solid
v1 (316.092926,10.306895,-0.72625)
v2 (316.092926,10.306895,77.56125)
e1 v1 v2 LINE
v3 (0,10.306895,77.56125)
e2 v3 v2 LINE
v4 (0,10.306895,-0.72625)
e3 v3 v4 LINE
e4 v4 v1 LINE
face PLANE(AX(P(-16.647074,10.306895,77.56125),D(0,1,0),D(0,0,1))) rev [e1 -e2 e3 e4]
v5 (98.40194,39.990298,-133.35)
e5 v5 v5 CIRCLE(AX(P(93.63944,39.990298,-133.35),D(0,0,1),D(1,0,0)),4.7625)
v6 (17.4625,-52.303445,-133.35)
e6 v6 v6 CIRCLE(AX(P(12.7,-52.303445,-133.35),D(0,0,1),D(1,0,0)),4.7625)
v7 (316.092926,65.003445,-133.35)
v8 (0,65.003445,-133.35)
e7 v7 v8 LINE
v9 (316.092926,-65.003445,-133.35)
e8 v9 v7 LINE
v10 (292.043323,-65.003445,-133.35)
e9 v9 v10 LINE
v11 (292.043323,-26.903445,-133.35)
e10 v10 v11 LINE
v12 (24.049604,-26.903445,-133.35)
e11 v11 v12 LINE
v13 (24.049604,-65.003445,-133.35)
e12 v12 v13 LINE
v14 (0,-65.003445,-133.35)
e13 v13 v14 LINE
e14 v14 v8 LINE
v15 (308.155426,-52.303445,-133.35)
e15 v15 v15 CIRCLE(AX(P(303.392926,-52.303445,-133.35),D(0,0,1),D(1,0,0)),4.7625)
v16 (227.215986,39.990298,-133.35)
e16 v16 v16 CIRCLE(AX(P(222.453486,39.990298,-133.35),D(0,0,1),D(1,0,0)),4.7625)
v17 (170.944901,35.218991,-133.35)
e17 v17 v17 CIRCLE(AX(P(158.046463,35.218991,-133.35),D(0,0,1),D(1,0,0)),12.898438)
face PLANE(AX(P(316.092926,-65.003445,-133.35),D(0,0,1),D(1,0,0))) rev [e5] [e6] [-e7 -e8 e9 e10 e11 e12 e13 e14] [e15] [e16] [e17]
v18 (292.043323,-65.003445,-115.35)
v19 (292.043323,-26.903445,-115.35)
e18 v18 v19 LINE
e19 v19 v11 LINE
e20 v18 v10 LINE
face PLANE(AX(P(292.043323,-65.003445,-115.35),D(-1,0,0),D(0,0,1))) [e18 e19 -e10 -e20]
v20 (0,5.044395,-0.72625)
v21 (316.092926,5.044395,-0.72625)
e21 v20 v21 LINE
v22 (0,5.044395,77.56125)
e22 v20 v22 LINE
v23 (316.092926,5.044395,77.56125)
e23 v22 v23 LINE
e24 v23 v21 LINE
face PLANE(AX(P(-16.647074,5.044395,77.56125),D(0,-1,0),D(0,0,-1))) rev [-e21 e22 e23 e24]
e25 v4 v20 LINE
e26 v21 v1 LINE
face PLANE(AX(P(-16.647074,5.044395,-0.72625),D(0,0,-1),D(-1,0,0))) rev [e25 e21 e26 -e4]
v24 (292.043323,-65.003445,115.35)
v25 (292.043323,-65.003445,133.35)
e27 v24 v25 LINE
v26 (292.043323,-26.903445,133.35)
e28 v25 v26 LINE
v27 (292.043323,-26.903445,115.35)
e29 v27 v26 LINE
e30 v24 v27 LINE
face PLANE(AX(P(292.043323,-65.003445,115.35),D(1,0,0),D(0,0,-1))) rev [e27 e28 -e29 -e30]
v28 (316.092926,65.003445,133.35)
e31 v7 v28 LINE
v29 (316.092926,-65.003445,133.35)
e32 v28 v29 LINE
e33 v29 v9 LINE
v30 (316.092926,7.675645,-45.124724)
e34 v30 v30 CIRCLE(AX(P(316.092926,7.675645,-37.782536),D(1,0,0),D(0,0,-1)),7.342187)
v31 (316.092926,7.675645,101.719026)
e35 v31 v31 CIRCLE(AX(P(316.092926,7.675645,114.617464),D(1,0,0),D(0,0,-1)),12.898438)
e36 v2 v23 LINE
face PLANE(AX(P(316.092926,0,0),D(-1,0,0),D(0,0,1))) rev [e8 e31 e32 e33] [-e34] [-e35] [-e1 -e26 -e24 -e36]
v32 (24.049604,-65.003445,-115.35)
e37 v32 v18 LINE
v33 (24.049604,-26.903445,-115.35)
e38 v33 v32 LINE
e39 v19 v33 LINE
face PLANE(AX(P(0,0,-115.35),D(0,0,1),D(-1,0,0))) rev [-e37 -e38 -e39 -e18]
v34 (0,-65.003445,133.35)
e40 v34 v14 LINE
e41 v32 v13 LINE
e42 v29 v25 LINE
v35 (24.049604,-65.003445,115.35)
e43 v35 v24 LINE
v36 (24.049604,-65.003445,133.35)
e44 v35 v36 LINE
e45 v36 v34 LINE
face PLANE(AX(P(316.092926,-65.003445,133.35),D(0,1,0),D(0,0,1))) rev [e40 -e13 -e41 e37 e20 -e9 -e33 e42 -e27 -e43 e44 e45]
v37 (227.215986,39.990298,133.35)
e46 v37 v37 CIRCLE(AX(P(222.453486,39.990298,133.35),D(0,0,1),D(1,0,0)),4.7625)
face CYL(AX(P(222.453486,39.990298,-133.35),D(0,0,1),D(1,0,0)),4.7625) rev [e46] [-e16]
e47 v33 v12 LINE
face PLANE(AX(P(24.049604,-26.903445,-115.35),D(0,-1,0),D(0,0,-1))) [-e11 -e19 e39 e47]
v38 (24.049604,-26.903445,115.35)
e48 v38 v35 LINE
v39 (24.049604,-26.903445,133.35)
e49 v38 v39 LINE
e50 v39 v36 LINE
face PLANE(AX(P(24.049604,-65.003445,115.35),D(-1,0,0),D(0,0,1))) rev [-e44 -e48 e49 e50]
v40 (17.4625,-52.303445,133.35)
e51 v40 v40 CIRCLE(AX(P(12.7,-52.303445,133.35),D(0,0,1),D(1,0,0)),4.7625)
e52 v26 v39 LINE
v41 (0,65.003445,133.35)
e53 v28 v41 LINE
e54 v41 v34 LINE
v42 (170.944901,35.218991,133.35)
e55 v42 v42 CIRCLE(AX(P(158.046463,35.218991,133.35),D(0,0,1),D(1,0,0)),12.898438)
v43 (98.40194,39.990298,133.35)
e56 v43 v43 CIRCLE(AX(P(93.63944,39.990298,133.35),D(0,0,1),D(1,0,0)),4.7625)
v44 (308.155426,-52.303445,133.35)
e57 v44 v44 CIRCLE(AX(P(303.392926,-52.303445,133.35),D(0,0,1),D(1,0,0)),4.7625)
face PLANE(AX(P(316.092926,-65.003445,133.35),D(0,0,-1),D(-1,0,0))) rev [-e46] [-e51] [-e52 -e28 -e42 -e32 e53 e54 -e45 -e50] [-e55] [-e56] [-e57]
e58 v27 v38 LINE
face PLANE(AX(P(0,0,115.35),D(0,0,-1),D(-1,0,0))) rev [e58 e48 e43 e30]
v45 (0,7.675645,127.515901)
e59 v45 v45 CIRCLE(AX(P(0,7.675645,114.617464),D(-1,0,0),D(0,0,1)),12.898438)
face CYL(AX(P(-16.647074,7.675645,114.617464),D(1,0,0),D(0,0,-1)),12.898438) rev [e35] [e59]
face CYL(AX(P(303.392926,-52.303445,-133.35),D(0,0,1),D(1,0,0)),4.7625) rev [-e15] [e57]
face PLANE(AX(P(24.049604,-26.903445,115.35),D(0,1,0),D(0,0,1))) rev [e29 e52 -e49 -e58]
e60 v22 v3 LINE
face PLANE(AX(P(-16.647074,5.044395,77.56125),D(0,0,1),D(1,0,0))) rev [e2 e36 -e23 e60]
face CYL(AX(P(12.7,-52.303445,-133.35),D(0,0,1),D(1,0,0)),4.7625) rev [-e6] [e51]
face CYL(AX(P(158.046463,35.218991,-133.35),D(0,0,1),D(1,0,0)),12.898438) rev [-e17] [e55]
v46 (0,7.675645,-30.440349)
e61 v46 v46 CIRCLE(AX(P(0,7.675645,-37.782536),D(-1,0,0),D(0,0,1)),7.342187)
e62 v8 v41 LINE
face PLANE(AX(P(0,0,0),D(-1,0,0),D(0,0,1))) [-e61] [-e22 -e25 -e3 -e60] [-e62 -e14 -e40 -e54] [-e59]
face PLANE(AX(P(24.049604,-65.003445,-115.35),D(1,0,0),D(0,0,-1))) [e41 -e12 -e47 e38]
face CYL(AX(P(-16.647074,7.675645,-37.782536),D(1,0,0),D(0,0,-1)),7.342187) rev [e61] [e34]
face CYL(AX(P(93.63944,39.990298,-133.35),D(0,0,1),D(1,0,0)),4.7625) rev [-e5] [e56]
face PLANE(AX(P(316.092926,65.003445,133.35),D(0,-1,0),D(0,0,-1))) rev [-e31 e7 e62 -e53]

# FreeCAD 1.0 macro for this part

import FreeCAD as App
import Part
import Sketcher
from FreeCAD import Vector
Q = App.Units.Quantity


def add_polygon(sketch, points):
    """Adds a closed chain of lines whose ends are joined by coincident constraints."""
    first, n = sketch.GeometryCount, len(points)
    for a, b in zip(points, points[1:] + points[:1]):
        sketch.addGeometry(Part.LineSegment(App.Vector(*a, 0), App.Vector(*b, 0)), False)
    for i in range(n):
        sketch.addConstraint(Sketcher.Constraint("Coincident", first + i, 2, first + (i + 1) % n, 1))

doc = App.newDocument("Part")
body = doc.addObject("PartDesign::Body", "Body")

# Sketch on YZ plane
sketch1 = doc.addObject("Sketcher::SketchObject", "Sketch")
body.addObject(sketch1)
sketch1.AttachmentSupport = (doc.YZ_Plane, [""])
sketch1.MapMode = "FlatFace"
add_polygon(sketch1, [(65, 133), (-65, 133), (-65, -133), (65, -133)])  # lines 0-3
sketch1.addConstraint(Sketcher.Constraint("Horizontal", 0))
sketch1.addConstraint(Sketcher.Constraint("Vertical", 1))
sketch1.addConstraint(Sketcher.Constraint("Horizontal", 2))
sketch1.addConstraint(Sketcher.Constraint("Vertical", 3))
sketch1.addConstraint(Sketcher.Constraint("Symmetric", 0, 2, 2, 2, -1, 1))
sketch1.addConstraint(Sketcher.Constraint("DistanceY", 1, 2, 1, 1, Q("10.5 in")))
sketch1.addConstraint(Sketcher.Constraint("DistanceX", 0, 2, 0, 1, 130.00689))
pad1 = doc.addObject("PartDesign::Pad", "Pad")
body.addObject(pad1)
pad1.Profile = sketch1
pad1.Length = 316.092926

# Sketch on XY plane
sketch2 = doc.addObject("Sketcher::SketchObject", "Sketch001")
body.addObject(sketch2)
sketch2.AttachmentSupport = (doc.XY_Plane, [""])
sketch2.MapMode = "FlatFace"
sketch2.AttachmentOffset = App.Placement(Vector(0, 0, 5.25 * 25.4), App.Rotation())
sketch2.addGeometry(Part.Circle(Vector(93.6, 40, 0), Vector(0, 0, 1), 4.8), False)
sketch2.addGeometry(Part.Circle(Vector(222.5, 40, 0), Vector(0, 0, 1), 4.8), False)
sketch2.addGeometry(Part.Circle(Vector(303.4, -52.3, 0), Vector(0, 0, 1), 4.8), False)
sketch2.addGeometry(Part.Circle(Vector(12.7, -52.3, 0), Vector(0, 0, 1), 4.8), False)
sketch2.addGeometry(Part.Circle(Vector(158, 35.2, 0), Vector(0, 0, 1), 12.9), False)
sketch2.addConstraint(Sketcher.Constraint("Equal", 0, 1))
sketch2.addConstraint(Sketcher.Constraint("Equal", 1, 2))
sketch2.addConstraint(Sketcher.Constraint("Equal", 2, 3))
sketch2.addConstraint(Sketcher.Constraint("Horizontal", 0, 3, 1, 3))
sketch2.addConstraint(Sketcher.Constraint("Horizontal", 2, 3, 3, 3))
sketch2.addConstraint(Sketcher.Constraint("Diameter", 0, Q("0.375 in")))
sketch2.addConstraint(Sketcher.Constraint("Diameter", 4, Q("1.015625 in")))
sketch2.addConstraint(Sketcher.Constraint("DistanceX", -1, 1, 3, 3, Q("0.5 in")))
sketch2.addConstraint(Sketcher.Constraint("DistanceX", -1, 1, 0, 3, 93.63944))
sketch2.addConstraint(Sketcher.Constraint("DistanceY", -1, 1, 4, 3, 35.218991))
sketch2.addConstraint(Sketcher.Constraint("DistanceX", 1, 3, 2, 3, 80.93944))
sketch2.addConstraint(Sketcher.Constraint("DistanceY", -1, 1, 0, 3, 39.990298))
sketch2.addConstraint(Sketcher.Constraint("DistanceX", -1, 1, 1, 3, 222.453486))
sketch2.addConstraint(Sketcher.Constraint("DistanceY", 2, 3, -1, 1, 52.303445))
sketch2.addConstraint(Sketcher.Constraint("DistanceX", -1, 1, 4, 3, 158.046463))
pocket1 = doc.addObject("PartDesign::Pocket", "Pocket")
body.addObject(pocket1)
pocket1.Profile = sketch2
pocket1.Length = Q("10.5 in")

# Sketch on YZ plane
sketch3 = doc.addObject("Sketcher::SketchObject", "Sketch002")
body.addObject(sketch3)
sketch3.AttachmentSupport = (doc.YZ_Plane, [""])
sketch3.MapMode = "FlatFace"
sketch3.AttachmentOffset = App.Placement(Vector(0, 0, 316.092926), App.Rotation())
sketch3.addGeometry(Part.Circle(Vector(8, 115, 0), Vector(0, 0, 1), 13), False)  # 0
sketch3.addGeometry(Part.Circle(Vector(8, -38, 0), Vector(0, 0, 1), 7), False)  # 1
add_polygon(sketch3, [(10, 78), (5, 78), (5, -1), (10, -1)])  # lines 2-5
sketch3.addConstraint(Sketcher.Constraint("Horizontal", 2))
sketch3.addConstraint(Sketcher.Constraint("Vertical", 3))
sketch3.addConstraint(Sketcher.Constraint("Horizontal", 4))
sketch3.addConstraint(Sketcher.Constraint("Vertical", 5))
sketch3.addConstraint(Sketcher.Constraint("Vertical", 0, 3, 1, 3))
sketch3.addConstraint(Sketcher.Constraint("Diameter", 0, Q("1.015625 in")))
sketch3.addConstraint(Sketcher.Constraint("Diameter", 1, Q("0.578125 in")))
sketch3.addConstraint(Sketcher.Constraint("DistanceY", 1, 3, 0, 3, Q("6 in")))
sketch3.addConstraint(Sketcher.Constraint("DistanceX", 2, 2, 2, 1, 5.2625))
sketch3.addConstraint(Sketcher.Constraint("DistanceY", 3, 2, 3, 1, 78.2875))
sketch3.addConstraint(Sketcher.Constraint("DistanceY", -1, 1, 2, 2, 77.56125))
sketch3.addConstraint(Sketcher.Constraint("DistanceX", 2, 2, 0, 3, 2.63125))
sketch3.addConstraint(Sketcher.Constraint("DistanceX", -1, 1, 0, 3, 7.675645))
sketch3.addConstraint(Sketcher.Constraint("DistanceY", -1, 1, 0, 3, 114.617464))
pocket2 = doc.addObject("PartDesign::Pocket", "Pocket001")
body.addObject(pocket2)
pocket2.Profile = sketch3
pocket2.Length = Q("13.1 in")

# Sketch on XY plane
sketch4 = doc.addObject("Sketcher::SketchObject", "Sketch003")
body.addObject(sketch4)
sketch4.AttachmentSupport = (doc.XY_Plane, [""])
sketch4.MapMode = "FlatFace"
sketch4.AttachmentOffset = App.Placement(Vector(0, 0, 5.25 * 25.4), App.Rotation())
add_polygon(sketch4, [(24, -27), (24, -65), (292, -65), (292, -27)])  # lines 0-3
sketch4.addConstraint(Sketcher.Constraint("Vertical", 0))
sketch4.addConstraint(Sketcher.Constraint("Horizontal", 1))
sketch4.addConstraint(Sketcher.Constraint("Vertical", 2))
sketch4.addConstraint(Sketcher.Constraint("Horizontal", 3))
sketch4.addConstraint(Sketcher.Constraint("DistanceY", 0, 2, 0, 1, Q("1.5 in")))
sketch4.addConstraint(Sketcher.Constraint("DistanceX", 1, 1, 1, 2, 267.993719))
sketch4.addConstraint(Sketcher.Constraint("DistanceX", -1, 1, 0, 2, 24.049604))
sketch4.addConstraint(Sketcher.Constraint("DistanceY", 0, 2, -1, 1, 65.003445))
pocket3 = doc.addObject("PartDesign::Pocket", "Pocket002")
body.addObject(pocket3)
pocket3.Profile = sketch4
pocket3.Length = 18
doc.recompute()

mirrored = doc.addObject("PartDesign::Mirrored", "Mirrored")
body.addObject(mirrored)
mirrored.Originals = [pocket3]
mirrored.MirrorPlane = (doc.XY_Plane, [""])
body.Tip = mirrored

doc.recompute()
